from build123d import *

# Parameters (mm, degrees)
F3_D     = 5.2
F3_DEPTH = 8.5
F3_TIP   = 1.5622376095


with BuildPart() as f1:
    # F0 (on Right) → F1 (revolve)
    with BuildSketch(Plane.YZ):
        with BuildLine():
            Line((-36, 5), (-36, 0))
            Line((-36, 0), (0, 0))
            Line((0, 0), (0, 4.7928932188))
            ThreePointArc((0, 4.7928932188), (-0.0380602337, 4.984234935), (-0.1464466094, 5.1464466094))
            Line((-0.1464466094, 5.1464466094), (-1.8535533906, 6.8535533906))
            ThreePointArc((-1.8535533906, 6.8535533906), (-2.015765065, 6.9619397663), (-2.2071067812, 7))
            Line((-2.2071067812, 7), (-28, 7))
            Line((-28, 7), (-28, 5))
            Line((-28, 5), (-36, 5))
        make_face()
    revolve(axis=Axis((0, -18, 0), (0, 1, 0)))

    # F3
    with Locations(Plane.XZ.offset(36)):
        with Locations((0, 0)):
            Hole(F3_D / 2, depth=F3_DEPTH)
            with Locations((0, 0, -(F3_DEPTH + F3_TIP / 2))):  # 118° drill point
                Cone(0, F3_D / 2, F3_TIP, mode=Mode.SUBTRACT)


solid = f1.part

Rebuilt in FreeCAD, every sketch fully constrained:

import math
import FreeCAD as App
import Part
import Sketcher
Q = App.Units.Quantity

doc = App.newDocument("Part")
body = doc.addObject("PartDesign::Body", "Body")

sketch1 = body.newObject("Sketcher::SketchObject", "Sketch")
sketch1.AttachmentSupport = (doc.getObject("YZ_Plane"), [""])
sketch1.MapMode = "FlatFace"
sketch1.addGeometry([
    Part.LineSegment(App.Vector(-36, 5, 0), App.Vector(-36, 0, 0)),
    Part.LineSegment(App.Vector(-36, 0, 0), App.Vector(0, 0, 0)),
    Part.LineSegment(App.Vector(0, 0, 0), App.Vector(0, 4.79, 0)),
    Part.ArcOfCircle(Part.Circle(App.Vector(-0.5, 4.79, 0), App.Vector(0, 0, 1), 0.5), math.radians(0), math.radians(45)),
    Part.LineSegment(App.Vector(-0.15, 5.15, 0), App.Vector(-1.85, 6.85, 0)),
    Part.ArcOfCircle(Part.Circle(App.Vector(-2.21, 6.5, 0), App.Vector(0, 0, 1), 0.5), math.radians(45), math.radians(90)),
    Part.LineSegment(App.Vector(-2.21, 7, 0), App.Vector(-28, 7, 0)),
    Part.LineSegment(App.Vector(-28, 7, 0), App.Vector(-28, 5, 0)),
    Part.LineSegment(App.Vector(-28, 5, 0), App.Vector(-36, 5, 0)),
], False)
sketch1.addConstraint([
    Sketcher.Constraint("Coincident", 0, 2, 1, 1),
    Sketcher.Constraint("Coincident", 1, 2, 2, 1),
    Sketcher.Constraint("Tangent", 2, 2, 3, 1),
    Sketcher.Constraint("Tangent", 3, 2, 4, 1),
    Sketcher.Constraint("Tangent", 4, 2, 5, 1),
    Sketcher.Constraint("Tangent", 5, 2, 6, 1),
    Sketcher.Constraint("Coincident", 6, 2, 7, 1),
    Sketcher.Constraint("Coincident", 7, 2, 8, 1),
    Sketcher.Constraint("Coincident", 8, 2, 0, 1),
    Sketcher.Constraint("Vertical", 0),
    Sketcher.Constraint("Horizontal", 1),
    Sketcher.Constraint("Vertical", 2),
    Sketcher.Constraint("Horizontal", 6),
    Sketcher.Constraint("Vertical", 7),
    Sketcher.Constraint("Horizontal", 8),
    Sketcher.Constraint("Coincident", 1, 2, -1, 1),
    Sketcher.Constraint("Equal", 3, 5),
    Sketcher.Constraint("Radius", 3, Q("0.5 mm")),
    Sketcher.Constraint("DistanceX", 1, 1, 1, 2, Q("36 mm")),
    Sketcher.Constraint("DistanceX", 8, 2, 8, 1, Q("8 mm")),
    Sketcher.Constraint("DistanceY", 0, 2, 0, 1, Q("5 mm")),
    Sketcher.Constraint("DistanceY", 7, 2, 7, 1, Q("2 mm")),
    Sketcher.Constraint("Angle", 4, Q("135 deg")),
    Sketcher.Constraint("DistanceX", 6, 2, 6, 1, Q("25.792893 mm")),
])
revolution = body.newObject("PartDesign::Revolution", "Revolution")
revolution.Profile = sketch1
revolution.ReferenceAxis = (sketch1, ["H_Axis"])
revolution.Angle = 360

sketch2 = body.newObject("Sketcher::SketchObject", "Sketch001")
sketch2.AttachmentSupport = (doc.getObject("XZ_Plane"), [""])
sketch2.MapMode = "FlatFace"
sketch2.AttachmentOffset = App.Placement(App.Vector(0, 0, 36), App.Rotation())
sketch2.addGeometry(Part.Circle(App.Vector(0, 0, 0), App.Vector(0, 0, 1), 2.6), False)
sketch2.addConstraint([
    Sketcher.Constraint("Coincident", 0, 3, -1, 1),
    Sketcher.Constraint("Diameter", 0, Q("5.2 mm")),
])
doc.recompute()
hole = body.newObject("PartDesign::Hole", "Hole")
hole.Profile = sketch2
hole.ThreadType = "None"
hole.Diameter = 5.2
hole.DepthType = "Dimension"
hole.Depth = 8.5
hole.DrillPoint = "Angled"
hole.DrillPointAngle = 118

doc.recompute()
